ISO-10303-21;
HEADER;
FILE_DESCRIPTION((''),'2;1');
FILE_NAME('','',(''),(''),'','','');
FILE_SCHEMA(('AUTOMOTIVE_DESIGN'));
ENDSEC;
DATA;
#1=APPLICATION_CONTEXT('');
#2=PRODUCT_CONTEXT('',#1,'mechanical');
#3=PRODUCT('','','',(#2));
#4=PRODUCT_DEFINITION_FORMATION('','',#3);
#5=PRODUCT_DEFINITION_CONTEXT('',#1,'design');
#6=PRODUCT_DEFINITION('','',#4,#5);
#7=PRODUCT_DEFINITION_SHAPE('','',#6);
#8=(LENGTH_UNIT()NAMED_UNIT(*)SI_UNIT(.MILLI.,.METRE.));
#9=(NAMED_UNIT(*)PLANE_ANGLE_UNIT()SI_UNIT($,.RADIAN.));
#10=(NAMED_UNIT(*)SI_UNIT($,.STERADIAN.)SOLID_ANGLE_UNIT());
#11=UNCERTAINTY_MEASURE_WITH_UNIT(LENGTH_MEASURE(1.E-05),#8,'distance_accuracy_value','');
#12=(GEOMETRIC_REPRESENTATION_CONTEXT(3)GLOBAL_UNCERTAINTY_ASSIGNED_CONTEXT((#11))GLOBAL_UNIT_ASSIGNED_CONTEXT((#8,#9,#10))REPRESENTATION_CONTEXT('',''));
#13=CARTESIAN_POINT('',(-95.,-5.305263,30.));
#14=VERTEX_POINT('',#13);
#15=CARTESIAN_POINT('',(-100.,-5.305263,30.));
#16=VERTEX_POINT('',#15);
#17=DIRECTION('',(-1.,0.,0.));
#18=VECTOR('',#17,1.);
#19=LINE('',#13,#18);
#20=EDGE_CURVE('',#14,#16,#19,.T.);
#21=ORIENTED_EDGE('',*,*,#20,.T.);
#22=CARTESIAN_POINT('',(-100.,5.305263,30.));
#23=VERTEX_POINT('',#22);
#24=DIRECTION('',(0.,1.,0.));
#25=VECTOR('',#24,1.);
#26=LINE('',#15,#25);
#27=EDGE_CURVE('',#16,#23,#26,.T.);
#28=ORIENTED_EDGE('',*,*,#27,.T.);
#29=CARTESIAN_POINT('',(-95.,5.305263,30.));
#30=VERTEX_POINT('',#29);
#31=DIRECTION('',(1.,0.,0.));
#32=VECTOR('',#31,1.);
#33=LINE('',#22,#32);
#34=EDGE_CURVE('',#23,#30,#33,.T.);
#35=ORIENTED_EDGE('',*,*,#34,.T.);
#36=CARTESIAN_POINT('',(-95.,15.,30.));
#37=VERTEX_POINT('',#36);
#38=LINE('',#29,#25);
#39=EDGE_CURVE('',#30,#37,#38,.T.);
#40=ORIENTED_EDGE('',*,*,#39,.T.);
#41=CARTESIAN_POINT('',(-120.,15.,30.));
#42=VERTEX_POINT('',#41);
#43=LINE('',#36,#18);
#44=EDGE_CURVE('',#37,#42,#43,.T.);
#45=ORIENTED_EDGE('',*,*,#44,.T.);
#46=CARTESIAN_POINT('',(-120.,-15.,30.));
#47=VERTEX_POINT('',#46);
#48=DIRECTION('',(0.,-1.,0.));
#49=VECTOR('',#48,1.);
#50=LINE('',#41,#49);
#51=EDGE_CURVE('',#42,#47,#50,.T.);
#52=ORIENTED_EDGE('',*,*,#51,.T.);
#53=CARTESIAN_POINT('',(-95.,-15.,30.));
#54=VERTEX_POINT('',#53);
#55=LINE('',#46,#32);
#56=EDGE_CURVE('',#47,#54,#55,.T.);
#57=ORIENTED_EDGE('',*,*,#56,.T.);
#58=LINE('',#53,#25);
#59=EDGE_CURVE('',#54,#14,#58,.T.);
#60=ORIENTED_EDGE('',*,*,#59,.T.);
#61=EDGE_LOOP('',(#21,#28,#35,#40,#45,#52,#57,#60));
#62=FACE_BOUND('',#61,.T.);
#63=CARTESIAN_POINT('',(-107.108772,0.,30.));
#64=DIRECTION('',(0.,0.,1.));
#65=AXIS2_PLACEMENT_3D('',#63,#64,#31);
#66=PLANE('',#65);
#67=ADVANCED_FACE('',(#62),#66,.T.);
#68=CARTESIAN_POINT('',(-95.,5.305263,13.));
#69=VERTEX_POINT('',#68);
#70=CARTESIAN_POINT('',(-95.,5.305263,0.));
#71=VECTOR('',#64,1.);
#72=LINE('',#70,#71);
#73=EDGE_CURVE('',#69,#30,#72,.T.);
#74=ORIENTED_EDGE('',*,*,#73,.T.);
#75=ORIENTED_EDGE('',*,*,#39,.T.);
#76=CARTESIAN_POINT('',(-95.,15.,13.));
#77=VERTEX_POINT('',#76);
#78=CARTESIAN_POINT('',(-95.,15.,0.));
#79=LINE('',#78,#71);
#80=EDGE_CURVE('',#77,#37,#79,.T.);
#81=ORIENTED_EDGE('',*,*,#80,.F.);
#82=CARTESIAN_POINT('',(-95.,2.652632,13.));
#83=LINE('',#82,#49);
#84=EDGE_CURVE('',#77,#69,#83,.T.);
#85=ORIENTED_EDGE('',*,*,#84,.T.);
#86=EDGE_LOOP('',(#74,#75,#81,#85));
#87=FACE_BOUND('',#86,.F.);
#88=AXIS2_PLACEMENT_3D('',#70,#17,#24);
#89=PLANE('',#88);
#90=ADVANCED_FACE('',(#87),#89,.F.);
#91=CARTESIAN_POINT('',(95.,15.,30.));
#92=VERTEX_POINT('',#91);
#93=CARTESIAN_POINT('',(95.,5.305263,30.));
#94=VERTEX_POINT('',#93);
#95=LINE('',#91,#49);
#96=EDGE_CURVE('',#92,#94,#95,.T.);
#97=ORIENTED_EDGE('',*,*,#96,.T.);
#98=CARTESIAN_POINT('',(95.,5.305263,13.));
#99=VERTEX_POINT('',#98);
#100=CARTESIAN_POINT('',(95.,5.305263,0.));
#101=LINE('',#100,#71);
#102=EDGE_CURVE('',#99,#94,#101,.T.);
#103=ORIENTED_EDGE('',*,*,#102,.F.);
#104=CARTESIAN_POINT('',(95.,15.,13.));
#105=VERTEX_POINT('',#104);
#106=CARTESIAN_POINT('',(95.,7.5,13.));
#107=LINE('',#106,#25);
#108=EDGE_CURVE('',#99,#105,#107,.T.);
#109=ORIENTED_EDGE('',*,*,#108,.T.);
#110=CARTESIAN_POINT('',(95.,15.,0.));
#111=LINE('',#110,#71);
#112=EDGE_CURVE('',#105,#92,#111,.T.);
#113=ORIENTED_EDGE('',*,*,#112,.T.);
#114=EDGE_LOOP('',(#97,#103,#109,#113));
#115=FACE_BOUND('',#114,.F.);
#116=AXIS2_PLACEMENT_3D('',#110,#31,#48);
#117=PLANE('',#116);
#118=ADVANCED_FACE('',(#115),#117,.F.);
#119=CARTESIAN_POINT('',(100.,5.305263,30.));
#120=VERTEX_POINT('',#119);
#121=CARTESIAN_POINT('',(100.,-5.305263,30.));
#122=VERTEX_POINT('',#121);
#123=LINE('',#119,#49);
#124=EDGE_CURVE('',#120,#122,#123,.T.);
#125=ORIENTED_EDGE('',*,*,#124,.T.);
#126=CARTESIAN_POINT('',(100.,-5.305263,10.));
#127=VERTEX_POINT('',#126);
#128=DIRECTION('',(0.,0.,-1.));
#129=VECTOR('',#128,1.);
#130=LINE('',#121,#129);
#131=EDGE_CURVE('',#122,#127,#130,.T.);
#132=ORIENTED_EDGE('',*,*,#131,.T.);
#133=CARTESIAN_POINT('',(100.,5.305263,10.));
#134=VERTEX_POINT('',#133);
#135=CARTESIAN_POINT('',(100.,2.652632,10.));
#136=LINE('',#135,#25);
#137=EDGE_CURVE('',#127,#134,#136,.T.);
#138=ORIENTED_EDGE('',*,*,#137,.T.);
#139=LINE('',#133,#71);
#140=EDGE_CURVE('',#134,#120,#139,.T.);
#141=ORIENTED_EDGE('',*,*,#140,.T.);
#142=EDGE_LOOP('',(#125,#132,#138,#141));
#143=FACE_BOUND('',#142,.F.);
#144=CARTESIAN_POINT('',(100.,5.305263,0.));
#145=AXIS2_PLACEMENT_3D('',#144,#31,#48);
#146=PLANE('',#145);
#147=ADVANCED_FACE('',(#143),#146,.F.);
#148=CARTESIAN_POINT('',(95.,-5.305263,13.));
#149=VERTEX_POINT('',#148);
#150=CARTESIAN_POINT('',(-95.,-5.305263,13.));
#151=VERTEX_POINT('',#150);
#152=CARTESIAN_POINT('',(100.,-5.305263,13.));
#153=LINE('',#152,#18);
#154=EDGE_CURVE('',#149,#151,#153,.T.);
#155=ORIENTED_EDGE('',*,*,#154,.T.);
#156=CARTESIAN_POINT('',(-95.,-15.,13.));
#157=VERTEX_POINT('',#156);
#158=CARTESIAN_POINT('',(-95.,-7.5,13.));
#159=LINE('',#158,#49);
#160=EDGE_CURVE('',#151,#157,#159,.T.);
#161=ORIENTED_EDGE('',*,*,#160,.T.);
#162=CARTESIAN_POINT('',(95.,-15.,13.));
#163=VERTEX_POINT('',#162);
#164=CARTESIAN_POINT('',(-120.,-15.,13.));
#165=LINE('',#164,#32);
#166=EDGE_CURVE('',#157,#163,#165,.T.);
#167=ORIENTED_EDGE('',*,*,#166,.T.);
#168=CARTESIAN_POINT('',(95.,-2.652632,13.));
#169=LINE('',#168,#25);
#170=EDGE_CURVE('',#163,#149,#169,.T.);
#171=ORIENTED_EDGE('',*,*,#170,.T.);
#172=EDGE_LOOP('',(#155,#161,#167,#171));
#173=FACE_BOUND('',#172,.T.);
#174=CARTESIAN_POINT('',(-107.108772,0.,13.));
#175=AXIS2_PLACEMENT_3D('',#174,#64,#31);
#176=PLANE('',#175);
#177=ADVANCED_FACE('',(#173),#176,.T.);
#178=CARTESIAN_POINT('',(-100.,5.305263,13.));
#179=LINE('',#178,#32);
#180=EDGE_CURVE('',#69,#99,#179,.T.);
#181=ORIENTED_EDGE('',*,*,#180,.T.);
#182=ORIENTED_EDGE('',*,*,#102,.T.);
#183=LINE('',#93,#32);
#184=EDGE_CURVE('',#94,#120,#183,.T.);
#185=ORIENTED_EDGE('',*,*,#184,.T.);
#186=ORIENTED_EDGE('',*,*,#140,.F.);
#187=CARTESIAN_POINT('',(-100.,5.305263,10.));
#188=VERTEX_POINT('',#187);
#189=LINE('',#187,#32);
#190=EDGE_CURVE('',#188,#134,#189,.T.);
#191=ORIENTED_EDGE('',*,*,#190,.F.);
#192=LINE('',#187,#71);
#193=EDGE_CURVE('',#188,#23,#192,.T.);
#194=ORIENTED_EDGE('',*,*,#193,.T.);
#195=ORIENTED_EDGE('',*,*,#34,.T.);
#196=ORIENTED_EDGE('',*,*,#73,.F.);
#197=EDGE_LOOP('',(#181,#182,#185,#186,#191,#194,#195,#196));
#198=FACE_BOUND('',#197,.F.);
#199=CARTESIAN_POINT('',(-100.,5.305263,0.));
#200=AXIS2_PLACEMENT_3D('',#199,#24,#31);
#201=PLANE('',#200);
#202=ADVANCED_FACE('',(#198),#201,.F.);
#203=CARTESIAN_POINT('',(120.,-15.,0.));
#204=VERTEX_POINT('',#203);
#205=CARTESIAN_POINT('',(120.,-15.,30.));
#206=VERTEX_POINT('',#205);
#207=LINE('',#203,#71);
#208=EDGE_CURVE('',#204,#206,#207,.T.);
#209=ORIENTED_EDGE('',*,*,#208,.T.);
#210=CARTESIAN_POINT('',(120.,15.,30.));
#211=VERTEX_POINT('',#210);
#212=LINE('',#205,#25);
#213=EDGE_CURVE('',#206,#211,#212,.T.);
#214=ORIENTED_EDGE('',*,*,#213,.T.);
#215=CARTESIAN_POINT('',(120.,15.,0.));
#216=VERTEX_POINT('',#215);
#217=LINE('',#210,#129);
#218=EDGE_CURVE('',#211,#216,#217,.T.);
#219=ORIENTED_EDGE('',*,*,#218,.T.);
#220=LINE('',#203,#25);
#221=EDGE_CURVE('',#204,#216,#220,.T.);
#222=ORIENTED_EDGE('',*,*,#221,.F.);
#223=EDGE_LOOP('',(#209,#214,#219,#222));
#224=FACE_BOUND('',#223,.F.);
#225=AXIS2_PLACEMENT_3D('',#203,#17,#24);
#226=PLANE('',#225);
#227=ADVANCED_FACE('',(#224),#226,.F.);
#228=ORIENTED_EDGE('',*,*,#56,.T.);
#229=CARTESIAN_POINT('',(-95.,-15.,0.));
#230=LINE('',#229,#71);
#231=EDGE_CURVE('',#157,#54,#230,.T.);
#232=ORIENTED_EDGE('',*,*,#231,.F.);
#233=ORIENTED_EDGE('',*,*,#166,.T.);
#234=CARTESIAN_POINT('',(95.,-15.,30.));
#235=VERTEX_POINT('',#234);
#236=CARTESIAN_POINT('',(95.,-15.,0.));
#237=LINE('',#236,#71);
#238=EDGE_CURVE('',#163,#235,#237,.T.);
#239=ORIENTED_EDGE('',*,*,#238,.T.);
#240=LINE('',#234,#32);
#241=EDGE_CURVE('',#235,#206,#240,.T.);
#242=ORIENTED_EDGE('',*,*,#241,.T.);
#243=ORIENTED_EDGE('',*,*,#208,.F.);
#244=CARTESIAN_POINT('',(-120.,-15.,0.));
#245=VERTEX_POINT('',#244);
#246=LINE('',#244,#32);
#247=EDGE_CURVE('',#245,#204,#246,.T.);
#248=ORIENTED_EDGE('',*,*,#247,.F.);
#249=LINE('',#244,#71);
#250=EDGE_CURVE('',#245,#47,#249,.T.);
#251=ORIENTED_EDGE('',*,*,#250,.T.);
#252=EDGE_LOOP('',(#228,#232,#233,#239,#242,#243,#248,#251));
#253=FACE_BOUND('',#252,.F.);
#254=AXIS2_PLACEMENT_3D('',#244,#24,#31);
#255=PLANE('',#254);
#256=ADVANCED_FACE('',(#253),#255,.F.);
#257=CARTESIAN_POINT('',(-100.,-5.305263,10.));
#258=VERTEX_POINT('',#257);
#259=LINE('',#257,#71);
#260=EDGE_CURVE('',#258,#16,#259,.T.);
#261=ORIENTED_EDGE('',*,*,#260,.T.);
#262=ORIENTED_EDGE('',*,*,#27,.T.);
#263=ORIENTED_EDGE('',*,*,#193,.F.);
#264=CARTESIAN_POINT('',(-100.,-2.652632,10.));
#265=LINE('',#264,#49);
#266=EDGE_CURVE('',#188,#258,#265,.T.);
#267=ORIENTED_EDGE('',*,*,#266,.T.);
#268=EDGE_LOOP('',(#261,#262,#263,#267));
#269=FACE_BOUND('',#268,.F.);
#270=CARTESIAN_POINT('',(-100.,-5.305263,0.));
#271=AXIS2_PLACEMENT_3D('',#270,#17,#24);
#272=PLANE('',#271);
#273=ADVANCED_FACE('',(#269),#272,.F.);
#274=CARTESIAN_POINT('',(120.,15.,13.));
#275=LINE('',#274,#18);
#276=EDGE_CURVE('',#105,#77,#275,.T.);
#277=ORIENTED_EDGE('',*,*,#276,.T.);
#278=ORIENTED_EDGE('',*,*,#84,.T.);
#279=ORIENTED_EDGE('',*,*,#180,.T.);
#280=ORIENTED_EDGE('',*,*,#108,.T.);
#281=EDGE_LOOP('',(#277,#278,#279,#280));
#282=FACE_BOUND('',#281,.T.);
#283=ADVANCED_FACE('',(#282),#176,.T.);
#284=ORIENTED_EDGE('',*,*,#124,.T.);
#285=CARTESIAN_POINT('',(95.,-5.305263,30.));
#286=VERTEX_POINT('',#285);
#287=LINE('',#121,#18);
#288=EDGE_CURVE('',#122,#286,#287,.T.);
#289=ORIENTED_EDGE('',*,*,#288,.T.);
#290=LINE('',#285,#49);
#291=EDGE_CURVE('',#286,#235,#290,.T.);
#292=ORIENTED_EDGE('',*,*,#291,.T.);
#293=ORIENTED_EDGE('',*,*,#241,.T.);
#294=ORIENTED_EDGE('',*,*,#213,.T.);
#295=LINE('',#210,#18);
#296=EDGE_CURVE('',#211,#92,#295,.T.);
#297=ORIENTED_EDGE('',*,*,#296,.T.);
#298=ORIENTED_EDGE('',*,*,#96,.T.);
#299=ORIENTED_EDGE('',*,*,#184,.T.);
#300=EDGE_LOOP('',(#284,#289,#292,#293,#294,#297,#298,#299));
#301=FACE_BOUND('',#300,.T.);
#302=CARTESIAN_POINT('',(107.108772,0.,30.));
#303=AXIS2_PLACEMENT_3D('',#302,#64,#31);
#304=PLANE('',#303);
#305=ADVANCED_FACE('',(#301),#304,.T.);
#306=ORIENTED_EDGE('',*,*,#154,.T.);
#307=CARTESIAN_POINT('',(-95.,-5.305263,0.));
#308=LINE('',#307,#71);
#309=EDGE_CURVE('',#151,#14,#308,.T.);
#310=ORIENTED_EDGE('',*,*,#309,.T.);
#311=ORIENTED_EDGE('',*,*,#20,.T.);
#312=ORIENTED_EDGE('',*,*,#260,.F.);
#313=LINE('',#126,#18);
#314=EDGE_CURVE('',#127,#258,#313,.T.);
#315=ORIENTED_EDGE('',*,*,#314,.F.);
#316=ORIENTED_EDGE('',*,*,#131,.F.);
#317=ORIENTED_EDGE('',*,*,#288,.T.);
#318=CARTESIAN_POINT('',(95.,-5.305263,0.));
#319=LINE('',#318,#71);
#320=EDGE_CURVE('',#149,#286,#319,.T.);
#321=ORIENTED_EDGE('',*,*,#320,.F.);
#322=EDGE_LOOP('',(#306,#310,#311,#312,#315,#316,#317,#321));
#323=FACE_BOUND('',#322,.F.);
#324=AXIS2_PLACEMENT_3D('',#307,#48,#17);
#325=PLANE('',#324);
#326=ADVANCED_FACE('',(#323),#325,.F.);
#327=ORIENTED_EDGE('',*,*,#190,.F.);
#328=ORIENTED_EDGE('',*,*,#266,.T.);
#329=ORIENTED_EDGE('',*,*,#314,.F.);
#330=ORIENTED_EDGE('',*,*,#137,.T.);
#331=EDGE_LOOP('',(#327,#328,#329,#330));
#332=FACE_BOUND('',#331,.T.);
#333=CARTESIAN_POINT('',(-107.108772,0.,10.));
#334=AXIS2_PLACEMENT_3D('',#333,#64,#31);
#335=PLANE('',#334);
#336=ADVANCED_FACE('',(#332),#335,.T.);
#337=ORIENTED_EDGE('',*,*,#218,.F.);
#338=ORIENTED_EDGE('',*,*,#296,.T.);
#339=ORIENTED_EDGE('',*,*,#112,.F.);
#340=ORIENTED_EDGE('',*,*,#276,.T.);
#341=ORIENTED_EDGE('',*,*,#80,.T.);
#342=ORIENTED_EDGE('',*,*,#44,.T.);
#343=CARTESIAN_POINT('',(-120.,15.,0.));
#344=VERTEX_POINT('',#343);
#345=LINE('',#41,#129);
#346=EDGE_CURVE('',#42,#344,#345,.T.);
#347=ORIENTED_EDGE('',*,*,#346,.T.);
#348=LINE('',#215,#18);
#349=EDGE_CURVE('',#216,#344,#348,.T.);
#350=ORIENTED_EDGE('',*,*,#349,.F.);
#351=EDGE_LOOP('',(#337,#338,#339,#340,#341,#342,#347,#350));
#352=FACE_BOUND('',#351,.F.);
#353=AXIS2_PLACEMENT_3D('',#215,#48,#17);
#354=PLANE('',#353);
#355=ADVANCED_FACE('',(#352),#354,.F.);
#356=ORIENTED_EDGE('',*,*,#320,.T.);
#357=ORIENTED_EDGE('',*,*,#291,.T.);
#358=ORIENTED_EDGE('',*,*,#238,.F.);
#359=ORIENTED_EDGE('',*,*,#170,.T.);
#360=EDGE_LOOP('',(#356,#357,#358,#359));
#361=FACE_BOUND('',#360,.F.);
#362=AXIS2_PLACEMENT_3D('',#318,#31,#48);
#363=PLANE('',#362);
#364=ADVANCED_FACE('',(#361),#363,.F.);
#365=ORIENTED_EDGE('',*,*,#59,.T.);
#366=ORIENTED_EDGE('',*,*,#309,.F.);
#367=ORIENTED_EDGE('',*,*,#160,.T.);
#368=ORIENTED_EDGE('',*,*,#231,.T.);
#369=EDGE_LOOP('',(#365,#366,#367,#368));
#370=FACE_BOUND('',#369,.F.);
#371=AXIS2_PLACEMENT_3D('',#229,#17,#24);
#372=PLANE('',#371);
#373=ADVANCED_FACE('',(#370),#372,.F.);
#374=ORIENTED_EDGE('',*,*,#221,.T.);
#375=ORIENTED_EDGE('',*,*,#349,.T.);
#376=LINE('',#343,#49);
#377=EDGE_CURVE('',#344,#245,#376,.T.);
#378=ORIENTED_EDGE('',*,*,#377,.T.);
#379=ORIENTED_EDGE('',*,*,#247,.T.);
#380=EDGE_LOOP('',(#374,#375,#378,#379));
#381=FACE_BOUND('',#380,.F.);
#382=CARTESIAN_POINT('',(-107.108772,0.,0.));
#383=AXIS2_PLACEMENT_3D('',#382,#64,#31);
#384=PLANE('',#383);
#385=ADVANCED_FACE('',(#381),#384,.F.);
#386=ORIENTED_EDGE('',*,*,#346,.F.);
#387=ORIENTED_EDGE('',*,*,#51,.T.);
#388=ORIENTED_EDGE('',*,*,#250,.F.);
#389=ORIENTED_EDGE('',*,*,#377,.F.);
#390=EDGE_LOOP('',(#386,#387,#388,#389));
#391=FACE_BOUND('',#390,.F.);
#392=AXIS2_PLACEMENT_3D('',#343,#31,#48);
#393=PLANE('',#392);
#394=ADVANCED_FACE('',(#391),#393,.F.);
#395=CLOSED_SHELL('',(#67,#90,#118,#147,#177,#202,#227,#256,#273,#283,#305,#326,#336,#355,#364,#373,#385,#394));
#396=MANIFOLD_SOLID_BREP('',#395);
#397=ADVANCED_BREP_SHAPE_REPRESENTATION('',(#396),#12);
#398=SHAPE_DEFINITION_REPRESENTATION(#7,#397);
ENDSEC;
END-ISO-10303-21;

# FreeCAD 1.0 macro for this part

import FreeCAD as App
import Part
import Sketcher

doc = App.newDocument("Part")
params = doc.addObject("Spreadsheet::Sheet", "Params")
for row, (alias, value) in enumerate([
    ("sketch1_width", "240 mm"),
    ("sketch1_height", "30 mm"),
    ("pad1_length", "10 mm"),
    ("sketch2_width", "240 mm"),
    ("sketch2_width2", "200 mm"),
    ("sketch2_height", "30 mm"),
    ("pad2_length", "13 mm"),
    ("sketch3_width", "25 mm"),
    ("sketch3_width2", "5 mm"),
    ("sketch3_height", "30 mm"),
    ("pad3_length", "30 mm"),
], start=1):
    params.set(f"A{row}", alias)
    params.set(f"B{row}", "=" + value)
    params.setAlias(f"B{row}", alias)

body = doc.addObject("PartDesign::Body", "Body")

sketch1 = body.newObject("Sketcher::SketchObject", "Sketch")
sketch1.AttachmentSupport = (doc.getObject("XY_Plane"), [""])
sketch1.MapMode = "FlatFace"
sketch1.addGeometry([
    Part.LineSegment(App.Vector(-120, 15, 0), App.Vector(-120, -15, 0)),
    Part.LineSegment(App.Vector(-120, -15, 0), App.Vector(120, -15, 0)),
    Part.LineSegment(App.Vector(120, -15, 0), App.Vector(120, 15, 0)),
    Part.LineSegment(App.Vector(120, 15, 0), App.Vector(-120, 15, 0)),
], False)
sketch1.addConstraint([
    Sketcher.Constraint("Coincident", 0, 2, 1, 1),
    Sketcher.Constraint("Coincident", 1, 2, 2, 1),
    Sketcher.Constraint("Coincident", 2, 2, 3, 1),
    Sketcher.Constraint("Coincident", 3, 2, 0, 1),
    Sketcher.Constraint("Vertical", 0),
    Sketcher.Constraint("Horizontal", 1),
    Sketcher.Constraint("Vertical", 2),
    Sketcher.Constraint("Horizontal", 3),
    Sketcher.Constraint("Symmetric", 0, 2, 2, 2, -1, 1),
    Sketcher.Constraint("DistanceX", 1, 1, 1, 2, 240.0),
    Sketcher.Constraint("DistanceY", 0, 2, 0, 1, 30.0),
])
sketch1.setExpression("Constraints[9]", "Params.sketch1_width")
sketch1.setExpression("Constraints[10]", "Params.sketch1_height")
pad1 = body.newObject("PartDesign::Pad", "Pad")
pad1.Profile = sketch1
pad1.setExpression("Length", "Params.pad1_length")

sketch2 = body.newObject("Sketcher::SketchObject", "Sketch001")
sketch2.AttachmentSupport = (doc.getObject("XY_Plane"), [""])
sketch2.MapMode = "FlatFace"
sketch2.addGeometry([
    Part.LineSegment(App.Vector(-120, 15, 0), App.Vector(-120, -15, 0)),
    Part.LineSegment(App.Vector(-120, -15, 0), App.Vector(120, -15, 0)),
    Part.LineSegment(App.Vector(120, -15, 0), App.Vector(120, 15, 0)),
    Part.LineSegment(App.Vector(120, 15, 0), App.Vector(-120, 15, 0)),
    Part.LineSegment(App.Vector(-100, -5.305263, 0), App.Vector(-100, 5.305263, 0)),
    Part.LineSegment(App.Vector(-100, 5.305263, 0), App.Vector(100, 5.305263, 0)),
    Part.LineSegment(App.Vector(100, 5.305263, 0), App.Vector(100, -5.305263, 0)),
    Part.LineSegment(App.Vector(100, -5.305263, 0), App.Vector(-100, -5.305263, 0)),
], False)
sketch2.addConstraint([
    Sketcher.Constraint("Coincident", 0, 2, 1, 1),
    Sketcher.Constraint("Coincident", 1, 2, 2, 1),
    Sketcher.Constraint("Coincident", 2, 2, 3, 1),
    Sketcher.Constraint("Coincident", 3, 2, 0, 1),
    Sketcher.Constraint("Coincident", 4, 2, 5, 1),
    Sketcher.Constraint("Coincident", 5, 2, 6, 1),
    Sketcher.Constraint("Coincident", 6, 2, 7, 1),
    Sketcher.Constraint("Coincident", 7, 2, 4, 1),
    Sketcher.Constraint("Vertical", 0),
    Sketcher.Constraint("Horizontal", 1),
    Sketcher.Constraint("Vertical", 2),
    Sketcher.Constraint("Horizontal", 3),
    Sketcher.Constraint("Vertical", 4),
    Sketcher.Constraint("Horizontal", 5),
    Sketcher.Constraint("Vertical", 6),
    Sketcher.Constraint("Horizontal", 7),
    Sketcher.Constraint("Symmetric", 0, 2, 2, 2, -1, 1),
    Sketcher.Constraint("Symmetric", 4, 2, 6, 2, -1, 1),
    Sketcher.Constraint("DistanceX", 1, 1, 1, 2, 240.0),
    Sketcher.Constraint("DistanceX", 5, 1, 5, 2, 200.0),
    Sketcher.Constraint("DistanceY", 0, 2, 0, 1, 30.0),
    Sketcher.Constraint("DistanceY", 4, 1, 4, 2, 10.610526),
])
sketch2.setExpression("Constraints[18]", "Params.sketch2_width")
sketch2.setExpression("Constraints[19]", "Params.sketch2_width2")
sketch2.setExpression("Constraints[20]", "Params.sketch2_height")
pad2 = body.newObject("PartDesign::Pad", "Pad001")
pad2.Profile = sketch2
pad2.setExpression("Length", "Params.pad2_length")

sketch3 = body.newObject("Sketcher::SketchObject", "Sketch002")
sketch3.AttachmentSupport = (doc.getObject("XY_Plane"), [""])
sketch3.MapMode = "FlatFace"
sketch3.addGeometry([
    Part.LineSegment(App.Vector(-95, 15, 0), App.Vector(-120, 15, 0)),
    Part.LineSegment(App.Vector(-120, 15, 0), App.Vector(-120, -15, 0)),
    Part.LineSegment(App.Vector(-120, -15, 0), App.Vector(-95, -15, 0)),
    Part.LineSegment(App.Vector(-95, -15, 0), App.Vector(-95, -5.305263, 0)),
    Part.LineSegment(App.Vector(-95, -5.305263, 0), App.Vector(-100, -5.305263, 0)),
    Part.LineSegment(App.Vector(-100, -5.305263, 0), App.Vector(-100, 5.305263, 0)),
    Part.LineSegment(App.Vector(-100, 5.305263, 0), App.Vector(-95, 5.305263, 0)),
    Part.LineSegment(App.Vector(-95, 5.305263, 0), App.Vector(-95, 15, 0)),
    Part.LineSegment(App.Vector(120, 15, 0), App.Vector(95, 15, 0)),
    Part.LineSegment(App.Vector(95, 15, 0), App.Vector(95, 5.305263, 0)),
    Part.LineSegment(App.Vector(95, 5.305263, 0), App.Vector(100, 5.305263, 0)),
    Part.LineSegment(App.Vector(100, 5.305263, 0), App.Vector(100, -5.305263, 0)),
    Part.LineSegment(App.Vector(100, -5.305263, 0), App.Vector(95, -5.305263, 0)),
    Part.LineSegment(App.Vector(95, -5.305263, 0), App.Vector(95, -15, 0)),
    Part.LineSegment(App.Vector(95, -15, 0), App.Vector(120, -15, 0)),
    Part.LineSegment(App.Vector(120, -15, 0), App.Vector(120, 15, 0)),
], False)
sketch3.addConstraint([
    Sketcher.Constraint("Coincident", 0, 2, 1, 1),
    Sketcher.Constraint("Coincident", 1, 2, 2, 1),
    Sketcher.Constraint("Coincident", 2, 2, 3, 1),
    Sketcher.Constraint("Coincident", 3, 2, 4, 1),
    Sketcher.Constraint("Coincident", 4, 2, 5, 1),
    Sketcher.Constraint("Coincident", 5, 2, 6, 1),
    Sketcher.Constraint("Coincident", 6, 2, 7, 1),
    Sketcher.Constraint("Coincident", 7, 2, 0, 1),
    Sketcher.Constraint("Coincident", 8, 2, 9, 1),
    Sketcher.Constraint("Coincident", 9, 2, 10, 1),
    Sketcher.Constraint("Coincident", 10, 2, 11, 1),
    Sketcher.Constraint("Coincident", 11, 2, 12, 1),
    Sketcher.Constraint("Coincident", 12, 2, 13, 1),
    Sketcher.Constraint("Coincident", 13, 2, 14, 1),
    Sketcher.Constraint("Coincident", 14, 2, 15, 1),
    Sketcher.Constraint("Coincident", 15, 2, 8, 1),
    Sketcher.Constraint("Horizontal", 0),
    Sketcher.Constraint("Vertical", 1),
    Sketcher.Constraint("Horizontal", 2),
    Sketcher.Constraint("Vertical", 3),
    Sketcher.Constraint("Horizontal", 4),
    Sketcher.Constraint("Vertical", 5),
    Sketcher.Constraint("Horizontal", 6),
    Sketcher.Constraint("Vertical", 7),
    Sketcher.Constraint("Horizontal", 8),
    Sketcher.Constraint("Vertical", 9),
    Sketcher.Constraint("Horizontal", 10),
    Sketcher.Constraint("Vertical", 11),
    Sketcher.Constraint("Horizontal", 12),
    Sketcher.Constraint("Vertical", 13),
    Sketcher.Constraint("Horizontal", 14),
    Sketcher.Constraint("Vertical", 15),
    Sketcher.Constraint("Symmetric", 2, 2, 8, 2, -1, 1),
    Sketcher.Constraint("Symmetric", 4, 2, 10, 2, -1, 1),
    Sketcher.Constraint("Symmetric", 6, 2, 12, 2, -1, 1),
    Sketcher.Constraint("Symmetric", 0, 2, 14, 2, -1, 1),
    Sketcher.Constraint("Symmetric", 7, 2, 8, 2, -2),
    Sketcher.Constraint("Horizontal", 6, 2, 9, 2),
    Sketcher.Constraint("DistanceX", 0, 2, 0, 1, 25.0),
    Sketcher.Constraint("DistanceX", 4, 2, 4, 1, 5.0),
    Sketcher.Constraint("DistanceY", 1, 2, 1, 1, 30.0),
    Sketcher.Constraint("DistanceX", 0, 2, -1, 1, 120.0),
    Sketcher.Constraint("DistanceY", 3, 1, 3, 2, 9.694737),
])
sketch3.setExpression("Constraints[38]", "Params.sketch3_width")
sketch3.setExpression("Constraints[39]", "Params.sketch3_width2")
sketch3.setExpression("Constraints[40]", "Params.sketch3_height")
pad3 = body.newObject("PartDesign::Pad", "Pad002")
pad3.Profile = sketch3
pad3.setExpression("Length", "Params.pad3_length")

doc.recompute()
